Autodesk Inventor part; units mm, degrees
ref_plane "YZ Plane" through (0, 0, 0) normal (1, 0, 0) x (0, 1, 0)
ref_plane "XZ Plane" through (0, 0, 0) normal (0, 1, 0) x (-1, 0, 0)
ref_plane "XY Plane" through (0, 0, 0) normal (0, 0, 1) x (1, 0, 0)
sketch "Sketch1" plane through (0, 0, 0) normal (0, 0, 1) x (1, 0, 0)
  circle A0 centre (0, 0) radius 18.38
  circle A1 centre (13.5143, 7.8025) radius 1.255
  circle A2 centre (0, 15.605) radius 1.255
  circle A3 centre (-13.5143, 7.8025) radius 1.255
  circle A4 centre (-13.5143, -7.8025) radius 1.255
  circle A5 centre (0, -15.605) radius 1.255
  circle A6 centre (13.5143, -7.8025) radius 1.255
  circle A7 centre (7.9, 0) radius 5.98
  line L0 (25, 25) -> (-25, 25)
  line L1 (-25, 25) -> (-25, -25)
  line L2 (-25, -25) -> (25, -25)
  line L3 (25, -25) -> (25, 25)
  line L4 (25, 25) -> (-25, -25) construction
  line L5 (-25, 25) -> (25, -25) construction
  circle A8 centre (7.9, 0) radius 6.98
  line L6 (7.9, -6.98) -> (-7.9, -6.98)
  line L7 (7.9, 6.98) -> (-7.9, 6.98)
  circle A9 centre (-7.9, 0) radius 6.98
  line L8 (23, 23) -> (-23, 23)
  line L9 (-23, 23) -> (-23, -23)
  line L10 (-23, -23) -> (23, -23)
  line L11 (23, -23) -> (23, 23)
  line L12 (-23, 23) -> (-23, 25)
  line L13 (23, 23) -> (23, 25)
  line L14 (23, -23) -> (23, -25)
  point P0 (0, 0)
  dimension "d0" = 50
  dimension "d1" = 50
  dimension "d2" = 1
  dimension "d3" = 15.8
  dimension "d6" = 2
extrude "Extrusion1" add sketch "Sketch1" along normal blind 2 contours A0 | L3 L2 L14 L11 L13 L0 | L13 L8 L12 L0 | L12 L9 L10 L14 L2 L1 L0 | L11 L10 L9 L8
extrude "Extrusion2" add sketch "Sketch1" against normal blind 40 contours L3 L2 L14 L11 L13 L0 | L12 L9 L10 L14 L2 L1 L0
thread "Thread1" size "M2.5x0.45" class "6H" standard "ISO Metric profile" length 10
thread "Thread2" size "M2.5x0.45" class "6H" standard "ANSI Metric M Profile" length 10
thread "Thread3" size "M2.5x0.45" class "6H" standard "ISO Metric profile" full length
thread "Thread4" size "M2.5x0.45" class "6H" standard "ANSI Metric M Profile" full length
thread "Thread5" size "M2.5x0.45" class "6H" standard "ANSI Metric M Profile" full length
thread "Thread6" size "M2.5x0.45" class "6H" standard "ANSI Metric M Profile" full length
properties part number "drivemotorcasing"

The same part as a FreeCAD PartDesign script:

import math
import FreeCAD as App
import Part
import Sketcher

doc = App.newDocument("Part")
body = doc.addObject("PartDesign::Body", "Body")

sketch1 = doc.addObject("Sketcher::SketchObject", "Sketch")
body.addObject(sketch1)
sketch1.AttachmentSupport = (doc.XY_Plane, [""])
sketch1.MapMode = "FlatFace"
sketch1.addGeometry(Part.LineSegment(App.Vector(25, -25, 0), App.Vector(25, 25, 0)), False)
sketch1.addGeometry(Part.LineSegment(App.Vector(25, 25, 0), App.Vector(-25, 25, 0)), False)
sketch1.addGeometry(Part.LineSegment(App.Vector(-25, 25, 0), App.Vector(-25, -25, 0)), False)
sketch1.addGeometry(Part.LineSegment(App.Vector(-25, -25, 0), App.Vector(25, -25, 0)), False)
sketch1.addGeometry(Part.Circle(App.Vector(-13.5, -7.8, 0), App.Vector(0, 0, 1), 1.3), False)
sketch1.addGeometry(Part.Circle(App.Vector(0, -15.6, 0), App.Vector(0, 0, 1), 1.3), False)
sketch1.addGeometry(Part.Circle(App.Vector(13.5, -7.8, 0), App.Vector(0, 0, 1), 1.3), False)
sketch1.addGeometry(Part.Circle(App.Vector(-13.5, 7.8, 0), App.Vector(0, 0, 1), 1.3), False)
sketch1.addGeometry(Part.ArcOfCircle(Part.Circle(App.Vector(7.9, 0, 0), App.Vector(0, 0, 1), 7), math.radians(-90), math.radians(90)), False)
sketch1.addGeometry(Part.LineSegment(App.Vector(7.9, -7, 0), App.Vector(-7.9, -7, 0)), False)
sketch1.addGeometry(Part.ArcOfCircle(Part.Circle(App.Vector(-7.9, 0, 0), App.Vector(0, 0, 1), 7), math.radians(90), math.radians(270)), False)
sketch1.addGeometry(Part.LineSegment(App.Vector(-7.9, 7, 0), App.Vector(7.9, 7, 0)), False)
sketch1.addGeometry(Part.Circle(App.Vector(13.5, 7.8, 0), App.Vector(0, 0, 1), 1.3), False)
sketch1.addGeometry(Part.Circle(App.Vector(0, 15.6, 0), App.Vector(0, 0, 1), 1.3), False)
sketch1.addConstraint(Sketcher.Constraint("Coincident", 0, 2, 1, 1))
sketch1.addConstraint(Sketcher.Constraint("Coincident", 1, 2, 2, 1))
sketch1.addConstraint(Sketcher.Constraint("Coincident", 2, 2, 3, 1))
sketch1.addConstraint(Sketcher.Constraint("Coincident", 3, 2, 0, 1))
sketch1.addConstraint(Sketcher.Constraint("Tangent", 8, 1, 9, 1))
sketch1.addConstraint(Sketcher.Constraint("Tangent", 9, 2, 10, 2))
sketch1.addConstraint(Sketcher.Constraint("Tangent", 10, 1, 11, 1))
sketch1.addConstraint(Sketcher.Constraint("Tangent", 11, 2, 8, 2))
sketch1.addConstraint(Sketcher.Constraint("Vertical", 0))
sketch1.addConstraint(Sketcher.Constraint("Horizontal", 1))
sketch1.addConstraint(Sketcher.Constraint("Vertical", 2))
sketch1.addConstraint(Sketcher.Constraint("Horizontal", 3))
sketch1.addConstraint(Sketcher.Constraint("Horizontal", 9))
sketch1.addConstraint(Sketcher.Constraint("Horizontal", 11))
sketch1.addConstraint(Sketcher.Constraint("Equal", 4, 5))
sketch1.addConstraint(Sketcher.Constraint("Equal", 5, 6))
sketch1.addConstraint(Sketcher.Constraint("Equal", 6, 7))
sketch1.addConstraint(Sketcher.Constraint("Equal", 7, 12))
sketch1.addConstraint(Sketcher.Constraint("Equal", 12, 13))
sketch1.addConstraint(Sketcher.Constraint("Symmetric", 6, 3, 7, 3, -1, 1))
sketch1.addConstraint(Sketcher.Constraint("Symmetric", 8, 3, 10, 3, -1, 1))
sketch1.addConstraint(Sketcher.Constraint("Symmetric", 4, 3, 12, 3, -1, 1))
sketch1.addConstraint(Sketcher.Constraint("Symmetric", 5, 3, 13, 3, -1, 1))
sketch1.addConstraint(Sketcher.Constraint("Symmetric", 0, 2, 2, 2, -1, 1))
sketch1.addConstraint(Sketcher.Constraint("Symmetric", 4, 3, 6, 3, -2))
sketch1.addConstraint(Sketcher.Constraint("PointOnObject", 5, 3, -2))
sketch1.addConstraint(Sketcher.Constraint("Equal", 3, 0))
sketch1.addConstraint(Sketcher.Constraint("DistanceX", 1, 2, 1, 1, 50.0))
sketch1.addConstraint(Sketcher.Constraint("DistanceX", 9, 2, 9, 1, 15.8))
sketch1.addConstraint(Sketcher.Constraint("Diameter", 4, 2.51))
sketch1.addConstraint(Sketcher.Constraint("Radius", 8, 6.98))
sketch1.addConstraint(Sketcher.Constraint("DistanceY", 5, 3, -1, 1, 15.605))
sketch1.addConstraint(Sketcher.Constraint("DistanceY", 4, 3, 7, 3, 15.605))
sketch1.addConstraint(Sketcher.Constraint("DistanceX", 4, 3, -1, 1, 13.5143))
pad1 = doc.addObject("PartDesign::Pad", "Pad")
body.addObject(pad1)
pad1.Profile = sketch1
pad1.Length = 2

sketch2 = doc.addObject("Sketcher::SketchObject", "Sketch001")
body.addObject(sketch2)
sketch2.AttachmentSupport = (doc.XY_Plane, [""])
sketch2.MapMode = "FlatFace"
sketch2.addGeometry(Part.LineSegment(App.Vector(25, -25, 0), App.Vector(25, 25, 0)), False)
sketch2.addGeometry(Part.LineSegment(App.Vector(25, 25, 0), App.Vector(23, 25, 0)), False)
sketch2.addGeometry(Part.LineSegment(App.Vector(23, 25, 0), App.Vector(23, -23, 0)), False)
sketch2.addGeometry(Part.LineSegment(App.Vector(23, -23, 0), App.Vector(-23, -23, 0)), False)
sketch2.addGeometry(Part.LineSegment(App.Vector(-23, -23, 0), App.Vector(-23, 25, 0)), False)
sketch2.addGeometry(Part.LineSegment(App.Vector(-23, 25, 0), App.Vector(-25, 25, 0)), False)
sketch2.addGeometry(Part.LineSegment(App.Vector(-25, 25, 0), App.Vector(-25, -25, 0)), False)
sketch2.addGeometry(Part.LineSegment(App.Vector(-25, -25, 0), App.Vector(25, -25, 0)), False)
sketch2.addConstraint(Sketcher.Constraint("Coincident", 0, 2, 1, 1))
sketch2.addConstraint(Sketcher.Constraint("Coincident", 1, 2, 2, 1))
sketch2.addConstraint(Sketcher.Constraint("Coincident", 2, 2, 3, 1))
sketch2.addConstraint(Sketcher.Constraint("Coincident", 3, 2, 4, 1))
sketch2.addConstraint(Sketcher.Constraint("Coincident", 4, 2, 5, 1))
sketch2.addConstraint(Sketcher.Constraint("Coincident", 5, 2, 6, 1))
sketch2.addConstraint(Sketcher.Constraint("Coincident", 6, 2, 7, 1))
sketch2.addConstraint(Sketcher.Constraint("Coincident", 7, 2, 0, 1))
sketch2.addConstraint(Sketcher.Constraint("Vertical", 0))
sketch2.addConstraint(Sketcher.Constraint("Horizontal", 1))
sketch2.addConstraint(Sketcher.Constraint("Vertical", 2))
sketch2.addConstraint(Sketcher.Constraint("Horizontal", 3))
sketch2.addConstraint(Sketcher.Constraint("Vertical", 4))
sketch2.addConstraint(Sketcher.Constraint("Horizontal", 5))
sketch2.addConstraint(Sketcher.Constraint("Vertical", 6))
sketch2.addConstraint(Sketcher.Constraint("Horizontal", 7))
sketch2.addConstraint(Sketcher.Constraint("Symmetric", 0, 2, 6, 2, -1, 1))
sketch2.addConstraint(Sketcher.Constraint("Symmetric", 1, 2, 4, 2, -2))
sketch2.addConstraint(Sketcher.Constraint("Equal", 7, 0))
sketch2.addConstraint(Sketcher.Constraint("DistanceX", 1, 2, 1, 1, 2.0))
sketch2.addConstraint(Sketcher.Constraint("DistanceX", 7, 1, 7, 2, 50.0))
sketch2.addConstraint(Sketcher.Constraint("DistanceY", 6, 2, 3, 2, 2.0))
pad2 = doc.addObject("PartDesign::Pad", "Pad001")
body.addObject(pad2)
pad2.Profile = sketch2
pad2.Length = 40
pad2.Reversed = True

doc.recompute()
